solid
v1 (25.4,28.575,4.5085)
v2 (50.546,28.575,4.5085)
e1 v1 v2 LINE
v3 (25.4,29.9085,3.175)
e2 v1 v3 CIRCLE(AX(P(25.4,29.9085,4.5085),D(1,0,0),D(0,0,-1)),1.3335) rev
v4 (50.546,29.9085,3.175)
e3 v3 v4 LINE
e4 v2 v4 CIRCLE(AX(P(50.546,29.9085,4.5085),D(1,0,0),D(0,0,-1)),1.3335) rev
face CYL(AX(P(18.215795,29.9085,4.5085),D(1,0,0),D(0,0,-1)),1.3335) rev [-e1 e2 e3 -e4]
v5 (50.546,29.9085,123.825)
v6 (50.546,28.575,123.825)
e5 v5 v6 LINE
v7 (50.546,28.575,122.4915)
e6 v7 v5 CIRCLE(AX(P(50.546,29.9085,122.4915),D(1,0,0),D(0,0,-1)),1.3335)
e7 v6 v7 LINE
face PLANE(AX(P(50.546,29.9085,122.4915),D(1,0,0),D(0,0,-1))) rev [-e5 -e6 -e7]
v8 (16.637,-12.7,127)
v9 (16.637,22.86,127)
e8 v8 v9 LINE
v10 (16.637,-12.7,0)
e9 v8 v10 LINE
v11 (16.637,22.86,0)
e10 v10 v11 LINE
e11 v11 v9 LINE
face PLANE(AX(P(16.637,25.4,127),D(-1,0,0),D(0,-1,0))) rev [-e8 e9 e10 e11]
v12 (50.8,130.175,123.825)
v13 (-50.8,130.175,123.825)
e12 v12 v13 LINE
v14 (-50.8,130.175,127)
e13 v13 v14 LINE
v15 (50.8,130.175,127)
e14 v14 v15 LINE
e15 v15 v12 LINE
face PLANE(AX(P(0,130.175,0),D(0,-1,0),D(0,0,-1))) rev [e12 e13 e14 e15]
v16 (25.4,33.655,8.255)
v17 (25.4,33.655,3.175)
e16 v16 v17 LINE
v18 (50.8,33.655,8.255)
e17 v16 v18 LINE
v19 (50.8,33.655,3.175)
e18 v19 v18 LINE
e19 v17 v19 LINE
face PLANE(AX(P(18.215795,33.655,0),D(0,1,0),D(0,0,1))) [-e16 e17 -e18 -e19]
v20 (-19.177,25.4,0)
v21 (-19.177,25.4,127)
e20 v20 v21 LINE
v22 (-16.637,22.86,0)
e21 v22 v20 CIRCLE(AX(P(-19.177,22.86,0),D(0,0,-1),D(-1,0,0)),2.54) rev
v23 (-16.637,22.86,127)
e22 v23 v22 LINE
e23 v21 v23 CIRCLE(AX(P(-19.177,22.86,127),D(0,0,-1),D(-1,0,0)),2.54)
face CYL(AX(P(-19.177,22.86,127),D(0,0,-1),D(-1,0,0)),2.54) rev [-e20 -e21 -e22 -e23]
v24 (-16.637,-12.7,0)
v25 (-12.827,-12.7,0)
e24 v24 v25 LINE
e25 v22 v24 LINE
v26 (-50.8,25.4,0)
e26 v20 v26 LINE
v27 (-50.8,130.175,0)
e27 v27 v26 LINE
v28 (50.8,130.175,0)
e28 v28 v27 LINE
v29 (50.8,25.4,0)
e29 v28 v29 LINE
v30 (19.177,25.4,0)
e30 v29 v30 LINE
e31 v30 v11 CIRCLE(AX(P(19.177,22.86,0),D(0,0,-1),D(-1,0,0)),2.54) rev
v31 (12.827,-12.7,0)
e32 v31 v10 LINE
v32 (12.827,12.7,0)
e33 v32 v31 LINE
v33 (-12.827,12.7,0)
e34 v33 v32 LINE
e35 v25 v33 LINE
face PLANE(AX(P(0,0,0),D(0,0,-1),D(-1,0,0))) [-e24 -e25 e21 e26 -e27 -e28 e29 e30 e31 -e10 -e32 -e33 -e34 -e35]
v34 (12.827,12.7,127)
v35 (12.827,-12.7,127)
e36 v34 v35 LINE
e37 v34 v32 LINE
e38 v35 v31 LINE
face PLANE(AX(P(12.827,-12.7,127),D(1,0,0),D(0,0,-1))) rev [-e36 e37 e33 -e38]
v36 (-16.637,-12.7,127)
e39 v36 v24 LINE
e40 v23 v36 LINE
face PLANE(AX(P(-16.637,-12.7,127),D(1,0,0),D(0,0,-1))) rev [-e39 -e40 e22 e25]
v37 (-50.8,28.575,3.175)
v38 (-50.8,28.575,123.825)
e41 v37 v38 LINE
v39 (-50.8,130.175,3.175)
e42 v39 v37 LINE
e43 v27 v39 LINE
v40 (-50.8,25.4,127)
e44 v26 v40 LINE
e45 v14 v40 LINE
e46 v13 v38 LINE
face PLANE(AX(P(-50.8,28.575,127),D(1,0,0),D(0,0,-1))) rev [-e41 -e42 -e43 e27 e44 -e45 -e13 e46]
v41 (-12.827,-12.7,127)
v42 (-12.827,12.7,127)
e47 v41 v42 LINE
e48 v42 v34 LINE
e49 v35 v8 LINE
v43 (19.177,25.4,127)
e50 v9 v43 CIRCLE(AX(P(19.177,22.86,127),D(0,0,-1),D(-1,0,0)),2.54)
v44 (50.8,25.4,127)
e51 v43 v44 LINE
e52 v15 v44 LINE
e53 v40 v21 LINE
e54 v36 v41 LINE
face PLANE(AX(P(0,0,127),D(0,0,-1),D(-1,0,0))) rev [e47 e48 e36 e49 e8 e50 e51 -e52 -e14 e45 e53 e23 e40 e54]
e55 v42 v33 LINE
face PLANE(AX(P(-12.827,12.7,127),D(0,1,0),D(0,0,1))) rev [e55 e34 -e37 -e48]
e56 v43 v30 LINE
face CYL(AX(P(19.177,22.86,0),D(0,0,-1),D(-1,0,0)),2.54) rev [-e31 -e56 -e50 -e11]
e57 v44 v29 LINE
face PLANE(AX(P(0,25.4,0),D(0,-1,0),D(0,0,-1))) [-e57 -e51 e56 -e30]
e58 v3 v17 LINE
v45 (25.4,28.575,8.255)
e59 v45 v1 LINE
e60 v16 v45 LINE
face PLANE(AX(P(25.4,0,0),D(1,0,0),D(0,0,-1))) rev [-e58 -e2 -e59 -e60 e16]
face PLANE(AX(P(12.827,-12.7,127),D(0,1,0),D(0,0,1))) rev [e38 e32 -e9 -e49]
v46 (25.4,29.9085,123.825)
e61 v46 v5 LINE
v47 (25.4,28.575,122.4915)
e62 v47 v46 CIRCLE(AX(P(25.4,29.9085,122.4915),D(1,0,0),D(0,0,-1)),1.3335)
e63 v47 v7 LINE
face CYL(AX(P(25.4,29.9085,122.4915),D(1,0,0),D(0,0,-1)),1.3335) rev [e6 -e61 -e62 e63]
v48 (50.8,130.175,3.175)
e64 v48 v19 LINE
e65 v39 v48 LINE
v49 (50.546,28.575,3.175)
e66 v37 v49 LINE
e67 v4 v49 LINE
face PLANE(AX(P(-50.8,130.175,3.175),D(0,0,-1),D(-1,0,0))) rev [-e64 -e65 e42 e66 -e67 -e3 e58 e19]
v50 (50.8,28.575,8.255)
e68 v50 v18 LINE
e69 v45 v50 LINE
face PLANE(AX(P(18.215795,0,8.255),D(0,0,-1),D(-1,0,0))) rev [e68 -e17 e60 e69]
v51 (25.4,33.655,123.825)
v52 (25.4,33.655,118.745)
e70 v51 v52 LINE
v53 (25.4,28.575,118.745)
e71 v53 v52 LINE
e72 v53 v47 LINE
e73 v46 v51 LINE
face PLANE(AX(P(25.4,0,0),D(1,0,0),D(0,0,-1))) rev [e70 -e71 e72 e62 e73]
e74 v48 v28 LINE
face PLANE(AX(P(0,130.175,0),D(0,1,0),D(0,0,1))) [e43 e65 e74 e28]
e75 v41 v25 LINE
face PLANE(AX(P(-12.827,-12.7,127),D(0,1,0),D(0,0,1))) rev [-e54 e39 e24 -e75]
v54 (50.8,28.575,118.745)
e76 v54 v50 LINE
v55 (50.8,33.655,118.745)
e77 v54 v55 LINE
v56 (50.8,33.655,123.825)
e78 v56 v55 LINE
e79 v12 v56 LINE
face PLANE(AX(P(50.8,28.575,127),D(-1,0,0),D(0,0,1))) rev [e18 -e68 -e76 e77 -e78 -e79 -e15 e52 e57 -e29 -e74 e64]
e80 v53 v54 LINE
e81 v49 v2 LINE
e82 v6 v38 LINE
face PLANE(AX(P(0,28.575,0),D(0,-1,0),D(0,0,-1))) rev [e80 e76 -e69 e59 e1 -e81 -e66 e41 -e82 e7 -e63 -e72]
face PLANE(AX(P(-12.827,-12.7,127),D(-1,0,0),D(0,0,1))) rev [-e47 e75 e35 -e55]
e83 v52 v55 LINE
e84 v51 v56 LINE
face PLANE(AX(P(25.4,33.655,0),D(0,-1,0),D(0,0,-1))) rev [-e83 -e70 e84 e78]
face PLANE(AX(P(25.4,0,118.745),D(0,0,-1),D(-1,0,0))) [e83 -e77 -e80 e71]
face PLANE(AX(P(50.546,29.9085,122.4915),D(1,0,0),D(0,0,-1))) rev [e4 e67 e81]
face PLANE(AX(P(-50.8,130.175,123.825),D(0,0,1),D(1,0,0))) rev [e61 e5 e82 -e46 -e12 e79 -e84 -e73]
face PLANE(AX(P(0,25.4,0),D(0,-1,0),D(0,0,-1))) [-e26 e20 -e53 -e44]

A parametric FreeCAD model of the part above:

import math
import FreeCAD as App
import Part
import Sketcher
from FreeCAD import Vector
Q = App.Units.Quantity


def edges_at(feature, points):
    """Names of the edges that pass closest to the given points."""
    edges = feature.Shape.Edges
    near = lambda p: min(range(len(edges)), key=lambda i: edges[i].distToShape(Part.Vertex(*p))[0])
    return sorted({f"Edge{near(p) + 1}" for p in points})

doc = App.newDocument("Part")
params = doc.addObject("Spreadsheet::Sheet", "Params")
for row, (alias, value) in enumerate([
    ("sketch1_height", "1 in"),
    ("sketch1_height2", "1.5 in"),
    ("sketch1_width", "0.15 in"),
    ("sketch1_width2", "1.01 in"),
    ("pad1_length", "5 in"),
    ("sketch2_width", "4 in"),
    ("sketch2_height", "5 in"),
    ("pad2_length", "0.125 in"),
    ("fillet_radius", "0.1 in"),
    ("sketch3_width", "4 in"),
    ("sketch3_height", "0.125 in"),
    ("pad3_length", "4 in"),
    ("sketch4_width", "0.2 in"),
    ("pad4_length", "1 in"),
    ("pad5_length", "0.01 in"),
    ("sketch6_width", "0.2 in"),
    ("pad6_length", "1 in"),
    ("pad7_length", "0.01 in"),
], start=1):
    params.set(f"A{row}", alias)
    params.set(f"B{row}", "=" + value)
    params.setAlias(f"B{row}", alias)

body = doc.addObject("PartDesign::Body", "Body")

# Sketch on XY plane
sketch1 = doc.addObject("Sketcher::SketchObject", "Sketch")
body.addObject(sketch1)
sketch1.AttachmentSupport = (doc.XY_Plane, [""])
sketch1.MapMode = "FlatFace"
sketch1.addGeometry([
    Part.LineSegment(Vector(-16.6, -12.7, 0), Vector(-12.8, -12.7, 0)),  # 0
    Part.LineSegment(Vector(-12.8, -12.7, 0), Vector(-12.8, 12.7, 0)),  # 1
    Part.LineSegment(Vector(-12.8, 12.7, 0), Vector(12.8, 12.7, 0)),  # 2
    Part.LineSegment(Vector(12.8, 12.7, 0), Vector(12.8, -12.7, 0)),  # 3
    Part.LineSegment(Vector(12.8, -12.7, 0), Vector(16.6, -12.7, 0)),  # 4
    Part.LineSegment(Vector(16.6, -12.7, 0), Vector(16.6, 25.4, 0)),  # 5
    Part.LineSegment(Vector(16.6, 25.4, 0), Vector(-16.6, 25.4, 0)),  # 6
    Part.LineSegment(Vector(-16.6, 25.4, 0), Vector(-16.6, -12.7, 0)),  # 7
], False)
sketch1.addConstraint([
    Sketcher.Constraint("Coincident", 0, 2, 1, 1),
    Sketcher.Constraint("Coincident", 1, 2, 2, 1),
    Sketcher.Constraint("Coincident", 2, 2, 3, 1),
    Sketcher.Constraint("Coincident", 3, 2, 4, 1),
    Sketcher.Constraint("Coincident", 4, 2, 5, 1),
    Sketcher.Constraint("Coincident", 5, 2, 6, 1),
    Sketcher.Constraint("Coincident", 6, 2, 7, 1),
    Sketcher.Constraint("Coincident", 7, 2, 0, 1),
    Sketcher.Constraint("Horizontal", 0),
    Sketcher.Constraint("Vertical", 1),
    Sketcher.Constraint("Horizontal", 2),
    Sketcher.Constraint("Vertical", 3),
    Sketcher.Constraint("Horizontal", 4),
    Sketcher.Constraint("Vertical", 5),
    Sketcher.Constraint("Horizontal", 6),
    Sketcher.Constraint("Vertical", 7),
    Sketcher.Constraint("Symmetric", 0, 2, 2, 2, -1, 1),
    Sketcher.Constraint("Symmetric", 4, 2, 7, 2, -2),
    Sketcher.Constraint("DistanceY", 1, 1, 1, 2, Q("1 in")),
    Sketcher.Constraint("DistanceY", 5, 1, 5, 2, Q("1.5 in")),
    Sketcher.Constraint("DistanceX", 0, 1, 0, 2, Q("0.15 in")),
    Sketcher.Constraint("DistanceX", 2, 1, 2, 2, Q("1.01 in")),
])
sketch1.setExpression("Constraints[18]", "Params.sketch1_height")
sketch1.setExpression("Constraints[19]", "Params.sketch1_height2")
sketch1.setExpression("Constraints[20]", "Params.sketch1_width")
sketch1.setExpression("Constraints[21]", "Params.sketch1_width2")
pad1 = doc.addObject("PartDesign::Pad", "Pad")
body.addObject(pad1)
pad1.Profile = sketch1
pad1.setExpression("Length", "Params.pad1_length")

# Sketch on XZ plane
sketch2 = doc.addObject("Sketcher::SketchObject", "Sketch001")
body.addObject(sketch2)
sketch2.AttachmentSupport = (doc.XZ_Plane, [""])
sketch2.MapMode = "FlatFace"
sketch2.AttachmentOffset = App.Placement(Vector(0, 0, -1 * 25.4), App.Rotation())
sketch2.addGeometry([
    Part.LineSegment(Vector(-51, 0, 0), Vector(-51, 127, 0)),
    Part.LineSegment(Vector(-51, 127, 0), Vector(51, 127, 0)),
    Part.LineSegment(Vector(51, 127, 0), Vector(51, 0, 0)),
    Part.LineSegment(Vector(51, 0, 0), Vector(-51, 0, 0)),
], False)
sketch2.addConstraint([
    Sketcher.Constraint("Coincident", 0, 2, 1, 1),
    Sketcher.Constraint("Coincident", 1, 2, 2, 1),
    Sketcher.Constraint("Coincident", 2, 2, 3, 1),
    Sketcher.Constraint("Coincident", 3, 2, 0, 1),
    Sketcher.Constraint("Vertical", 0),
    Sketcher.Constraint("Horizontal", 1),
    Sketcher.Constraint("Vertical", 2),
    Sketcher.Constraint("Horizontal", 3),
    Sketcher.Constraint("Symmetric", 2, 2, 3, 2, -1, 1),
    Sketcher.Constraint("DistanceX", 1, 1, 1, 2, Q("4 in")),
    Sketcher.Constraint("DistanceY", 0, 1, 0, 2, Q("5 in")),
])
sketch2.setExpression("Constraints[9]", "Params.sketch2_width")
sketch2.setExpression("Constraints[10]", "Params.sketch2_height")
pad2 = doc.addObject("PartDesign::Pad", "Pad001")
body.addObject(pad2)
pad2.Profile = sketch2
pad2.setExpression("Length", "Params.pad2_length")
pad2.Reversed = True
doc.recompute()

fillet = doc.addObject("PartDesign::Fillet", "Fillet")
body.addObject(fillet)
fillet.Base = (pad2, edges_at(pad2, [(-16.637, 25.4, 63.5), (16.637, 25.4, 63.5)]))
fillet.setExpression("Radius", "Params.fillet_radius")

# Sketch on XZ plane
sketch3 = doc.addObject("Sketcher::SketchObject", "Sketch002")
body.addObject(sketch3)
sketch3.AttachmentSupport = (doc.XZ_Plane, [""])
sketch3.MapMode = "FlatFace"
sketch3.AttachmentOffset = App.Placement(Vector(0, 0, -1.125 * 25.4), App.Rotation())
sketch3.addGeometry([
    Part.LineSegment(Vector(-50.8, 123.8, 0), Vector(-50.8, 127, 0)),  # 0
    Part.LineSegment(Vector(-50.8, 127, 0), Vector(50.8, 127, 0)),  # 1
    Part.LineSegment(Vector(50.8, 127, 0), Vector(50.8, 123.8, 0)),  # 2
    Part.LineSegment(Vector(50.8, 123.8, 0), Vector(-50.8, 123.8, 0)),  # 3
    Part.LineSegment(Vector(-50.8, 0, 0), Vector(-50.8, 3.2, 0)),  # 4
    Part.LineSegment(Vector(-50.8, 3.2, 0), Vector(50.8, 3.2, 0)),  # 5
    Part.LineSegment(Vector(50.8, 3.2, 0), Vector(50.8, 0, 0)),  # 6
    Part.LineSegment(Vector(50.8, 0, 0), Vector(-50.8, 0, 0)),  # 7
], False)
sketch3.addConstraint([
    Sketcher.Constraint("Coincident", 0, 2, 1, 1),
    Sketcher.Constraint("Coincident", 1, 2, 2, 1),
    Sketcher.Constraint("Coincident", 2, 2, 3, 1),
    Sketcher.Constraint("Coincident", 3, 2, 0, 1),
    Sketcher.Constraint("Coincident", 4, 2, 5, 1),
    Sketcher.Constraint("Coincident", 5, 2, 6, 1),
    Sketcher.Constraint("Coincident", 6, 2, 7, 1),
    Sketcher.Constraint("Coincident", 7, 2, 4, 1),
    Sketcher.Constraint("Vertical", 0),
    Sketcher.Constraint("Horizontal", 1),
    Sketcher.Constraint("Vertical", 2),
    Sketcher.Constraint("Horizontal", 3),
    Sketcher.Constraint("Vertical", 4),
    Sketcher.Constraint("Horizontal", 5),
    Sketcher.Constraint("Vertical", 6),
    Sketcher.Constraint("Horizontal", 7),
    Sketcher.Constraint("Symmetric", 6, 2, 7, 2, -1, 1),
    Sketcher.Constraint("Vertical", 3, 2, 4, 2),
    Sketcher.Constraint("Vertical", 2, 2, 5, 2),
    Sketcher.Constraint("Equal", 2, 4),
    Sketcher.Constraint("DistanceX", 1, 1, 1, 2, Q("4 in")),
    Sketcher.Constraint("DistanceY", -1, 1, 0, 2, Q("5 in")),
    Sketcher.Constraint("DistanceY", 0, 1, 0, 2, Q("0.125 in")),
])
sketch3.setExpression("Constraints[20]", "Params.sketch3_width")
sketch3.setExpression("Constraints[22]", "Params.sketch3_height")
pad3 = doc.addObject("PartDesign::Pad", "Pad002")
body.addObject(pad3)
pad3.Profile = sketch3
pad3.setExpression("Length", "Params.pad3_length")
pad3.Reversed = True

# Sketch on YZ plane
sketch4 = doc.addObject("Sketcher::SketchObject", "Sketch003")
body.addObject(sketch4)
sketch4.AttachmentSupport = (doc.YZ_Plane, [""])
sketch4.MapMode = "FlatFace"
sketch4.AttachmentOffset = App.Placement(Vector(0, 0, 2 * 25.4), App.Rotation())
sketch4.addGeometry([
    Part.LineSegment(Vector(33.7, 123.8, 0), Vector(29.9, 123.8, 0)),  # 0
    Part.ArcOfCircle(Part.Circle(Vector(29.9, 122.5, 0), Vector(0, 0, 1), 1.3), math.radians(180), math.radians(450)),  # 1
    Part.LineSegment(Vector(28.6, 122.5, 0), Vector(28.6, 118.7, 0)),  # 2
    Part.LineSegment(Vector(28.6, 118.7, 0), Vector(33.7, 118.7, 0)),  # 3
    Part.LineSegment(Vector(33.7, 118.7, 0), Vector(33.7, 123.8, 0)),  # 4
], False)
sketch4.addConstraint([
    Sketcher.Constraint("Tangent", 0, 2, 1, 2),
    Sketcher.Constraint("Tangent", 1, 1, 2, 1),
    Sketcher.Constraint("Coincident", 2, 2, 3, 1),
    Sketcher.Constraint("Coincident", 3, 2, 4, 1),
    Sketcher.Constraint("Coincident", 4, 2, 0, 1),
    Sketcher.Constraint("Horizontal", 0),
    Sketcher.Constraint("Vertical", 2),
    Sketcher.Constraint("Horizontal", 3),
    Sketcher.Constraint("Vertical", 4),
    Sketcher.Constraint("Equal", 0, 2),
    Sketcher.Constraint("DistanceX", 3, 1, 3, 2, Q("0.2 in")),
    Sketcher.Constraint("Radius", 1, Q("0.0525 in")),
    Sketcher.Constraint("DistanceY", -1, 1, 0, 2, Q("4.875 in")),
    Sketcher.Constraint("DistanceX", -1, 1, 1, 1, Q("1.125 in")),
])
sketch4.setExpression("Constraints[10]", "Params.sketch4_width")
pad4 = doc.addObject("PartDesign::Pad", "Pad003")
body.addObject(pad4)
pad4.Profile = sketch4
pad4.setExpression("Length", "Params.pad4_length")
pad4.Reversed = True

# Sketch on YZ plane
sketch5 = doc.addObject("Sketcher::SketchObject", "Sketch004")
body.addObject(sketch5)
sketch5.AttachmentSupport = (doc.YZ_Plane, [""])
sketch5.MapMode = "FlatFace"
sketch5.AttachmentOffset = App.Placement(Vector(0, 0, 2 * 25.4), App.Rotation())
sketch5.addGeometry([
    Part.LineSegment(Vector(29.9, 123.8, 0), Vector(28.6, 123.8, 0)),
    Part.LineSegment(Vector(28.6, 123.8, 0), Vector(28.6, 122.5, 0)),
    Part.ArcOfCircle(Part.Circle(Vector(29.9, 122.5, 0), Vector(0, 0, 1), 1.3), math.radians(180), math.radians(450)),
], False)
sketch5.addConstraint([
    Sketcher.Constraint("Coincident", 0, 2, 1, 1),
    Sketcher.Constraint("Tangent", 1, 2, 2, 1),
    Sketcher.Constraint("Tangent", 2, 2, 0, 1),
    Sketcher.Constraint("Horizontal", 0),
    Sketcher.Constraint("Vertical", 1),
    Sketcher.Constraint("Radius", 2, Q("0.0525 in")),
    Sketcher.Constraint("DistanceX", -1, 1, 0, 2, Q("1.125 in")),
    Sketcher.Constraint("DistanceY", -1, 1, 0, 2, Q("4.875 in")),
])
pad5 = doc.addObject("PartDesign::Pad", "Pad004")
body.addObject(pad5)
pad5.Profile = sketch5
pad5.setExpression("Length", "Params.pad5_length")
pad5.Reversed = True

# Sketch on YZ plane
sketch6 = doc.addObject("Sketcher::SketchObject", "Sketch005")
body.addObject(sketch6)
sketch6.AttachmentSupport = (doc.YZ_Plane, [""])
sketch6.MapMode = "FlatFace"
sketch6.AttachmentOffset = App.Placement(Vector(0, 0, 2 * 25.4), App.Rotation())
sketch6.addGeometry([
    Part.LineSegment(Vector(28.6, 8.3, 0), Vector(28.6, 4.5, 0)),  # 0
    Part.ArcOfCircle(Part.Circle(Vector(29.9, 4.5, 0), Vector(0, 0, 1), 1.3), math.radians(-90), math.radians(180)),  # 1
    Part.LineSegment(Vector(29.9, 3.2, 0), Vector(33.7, 3.2, 0)),  # 2
    Part.LineSegment(Vector(33.7, 3.2, 0), Vector(33.7, 8.3, 0)),  # 3
    Part.LineSegment(Vector(33.7, 8.3, 0), Vector(28.6, 8.3, 0)),  # 4
], False)
sketch6.addConstraint([
    Sketcher.Constraint("Tangent", 0, 2, 1, 2),
    Sketcher.Constraint("Tangent", 1, 1, 2, 1),
    Sketcher.Constraint("Coincident", 2, 2, 3, 1),
    Sketcher.Constraint("Coincident", 3, 2, 4, 1),
    Sketcher.Constraint("Coincident", 4, 2, 0, 1),
    Sketcher.Constraint("Vertical", 0),
    Sketcher.Constraint("Horizontal", 2),
    Sketcher.Constraint("Vertical", 3),
    Sketcher.Constraint("Horizontal", 4),
    Sketcher.Constraint("Equal", 2, 0),
    Sketcher.Constraint("DistanceX", 4, 2, 4, 1, Q("0.2 in")),
    Sketcher.Constraint("Radius", 1, Q("0.0525 in")),
    Sketcher.Constraint("DistanceX", -1, 1, 0, 2, Q("1.125 in")),
    Sketcher.Constraint("DistanceY", -1, 1, 1, 1, Q("0.125 in")),
])
sketch6.setExpression("Constraints[10]", "Params.sketch6_width")
pad6 = doc.addObject("PartDesign::Pad", "Pad005")
body.addObject(pad6)
pad6.Profile = sketch6
pad6.setExpression("Length", "Params.pad6_length")
pad6.Reversed = True

# Sketch on YZ plane
sketch7 = doc.addObject("Sketcher::SketchObject", "Sketch006")
body.addObject(sketch7)
sketch7.AttachmentSupport = (doc.YZ_Plane, [""])
sketch7.MapMode = "FlatFace"
sketch7.AttachmentOffset = App.Placement(Vector(0, 0, 2 * 25.4), App.Rotation())
sketch7.addGeometry([
    Part.LineSegment(Vector(28.6, 3.2, 0), Vector(29.9, 3.2, 0)),
    Part.ArcOfCircle(Part.Circle(Vector(29.9, 4.5, 0), Vector(0, 0, 1), 1.3), math.radians(-90), math.radians(180)),
    Part.LineSegment(Vector(28.6, 4.5, 0), Vector(28.6, 3.2, 0)),
], False)
sketch7.addConstraint([
    Sketcher.Constraint("Tangent", 0, 2, 1, 1),
    Sketcher.Constraint("Tangent", 1, 2, 2, 1),
    Sketcher.Constraint("Coincident", 2, 2, 0, 1),
    Sketcher.Constraint("Horizontal", 0),
    Sketcher.Constraint("Vertical", 2),
    Sketcher.Constraint("Radius", 1, Q("0.0525 in")),
    Sketcher.Constraint("DistanceY", -1, 1, 0, 2, Q("0.125 in")),
    Sketcher.Constraint("DistanceX", -1, 1, 1, 2, Q("1.125 in")),
])
pad7 = doc.addObject("PartDesign::Pad", "Pad006")
body.addObject(pad7)
pad7.Profile = sketch7
pad7.setExpression("Length", "Params.pad7_length")
pad7.Reversed = True

doc.recompute()
